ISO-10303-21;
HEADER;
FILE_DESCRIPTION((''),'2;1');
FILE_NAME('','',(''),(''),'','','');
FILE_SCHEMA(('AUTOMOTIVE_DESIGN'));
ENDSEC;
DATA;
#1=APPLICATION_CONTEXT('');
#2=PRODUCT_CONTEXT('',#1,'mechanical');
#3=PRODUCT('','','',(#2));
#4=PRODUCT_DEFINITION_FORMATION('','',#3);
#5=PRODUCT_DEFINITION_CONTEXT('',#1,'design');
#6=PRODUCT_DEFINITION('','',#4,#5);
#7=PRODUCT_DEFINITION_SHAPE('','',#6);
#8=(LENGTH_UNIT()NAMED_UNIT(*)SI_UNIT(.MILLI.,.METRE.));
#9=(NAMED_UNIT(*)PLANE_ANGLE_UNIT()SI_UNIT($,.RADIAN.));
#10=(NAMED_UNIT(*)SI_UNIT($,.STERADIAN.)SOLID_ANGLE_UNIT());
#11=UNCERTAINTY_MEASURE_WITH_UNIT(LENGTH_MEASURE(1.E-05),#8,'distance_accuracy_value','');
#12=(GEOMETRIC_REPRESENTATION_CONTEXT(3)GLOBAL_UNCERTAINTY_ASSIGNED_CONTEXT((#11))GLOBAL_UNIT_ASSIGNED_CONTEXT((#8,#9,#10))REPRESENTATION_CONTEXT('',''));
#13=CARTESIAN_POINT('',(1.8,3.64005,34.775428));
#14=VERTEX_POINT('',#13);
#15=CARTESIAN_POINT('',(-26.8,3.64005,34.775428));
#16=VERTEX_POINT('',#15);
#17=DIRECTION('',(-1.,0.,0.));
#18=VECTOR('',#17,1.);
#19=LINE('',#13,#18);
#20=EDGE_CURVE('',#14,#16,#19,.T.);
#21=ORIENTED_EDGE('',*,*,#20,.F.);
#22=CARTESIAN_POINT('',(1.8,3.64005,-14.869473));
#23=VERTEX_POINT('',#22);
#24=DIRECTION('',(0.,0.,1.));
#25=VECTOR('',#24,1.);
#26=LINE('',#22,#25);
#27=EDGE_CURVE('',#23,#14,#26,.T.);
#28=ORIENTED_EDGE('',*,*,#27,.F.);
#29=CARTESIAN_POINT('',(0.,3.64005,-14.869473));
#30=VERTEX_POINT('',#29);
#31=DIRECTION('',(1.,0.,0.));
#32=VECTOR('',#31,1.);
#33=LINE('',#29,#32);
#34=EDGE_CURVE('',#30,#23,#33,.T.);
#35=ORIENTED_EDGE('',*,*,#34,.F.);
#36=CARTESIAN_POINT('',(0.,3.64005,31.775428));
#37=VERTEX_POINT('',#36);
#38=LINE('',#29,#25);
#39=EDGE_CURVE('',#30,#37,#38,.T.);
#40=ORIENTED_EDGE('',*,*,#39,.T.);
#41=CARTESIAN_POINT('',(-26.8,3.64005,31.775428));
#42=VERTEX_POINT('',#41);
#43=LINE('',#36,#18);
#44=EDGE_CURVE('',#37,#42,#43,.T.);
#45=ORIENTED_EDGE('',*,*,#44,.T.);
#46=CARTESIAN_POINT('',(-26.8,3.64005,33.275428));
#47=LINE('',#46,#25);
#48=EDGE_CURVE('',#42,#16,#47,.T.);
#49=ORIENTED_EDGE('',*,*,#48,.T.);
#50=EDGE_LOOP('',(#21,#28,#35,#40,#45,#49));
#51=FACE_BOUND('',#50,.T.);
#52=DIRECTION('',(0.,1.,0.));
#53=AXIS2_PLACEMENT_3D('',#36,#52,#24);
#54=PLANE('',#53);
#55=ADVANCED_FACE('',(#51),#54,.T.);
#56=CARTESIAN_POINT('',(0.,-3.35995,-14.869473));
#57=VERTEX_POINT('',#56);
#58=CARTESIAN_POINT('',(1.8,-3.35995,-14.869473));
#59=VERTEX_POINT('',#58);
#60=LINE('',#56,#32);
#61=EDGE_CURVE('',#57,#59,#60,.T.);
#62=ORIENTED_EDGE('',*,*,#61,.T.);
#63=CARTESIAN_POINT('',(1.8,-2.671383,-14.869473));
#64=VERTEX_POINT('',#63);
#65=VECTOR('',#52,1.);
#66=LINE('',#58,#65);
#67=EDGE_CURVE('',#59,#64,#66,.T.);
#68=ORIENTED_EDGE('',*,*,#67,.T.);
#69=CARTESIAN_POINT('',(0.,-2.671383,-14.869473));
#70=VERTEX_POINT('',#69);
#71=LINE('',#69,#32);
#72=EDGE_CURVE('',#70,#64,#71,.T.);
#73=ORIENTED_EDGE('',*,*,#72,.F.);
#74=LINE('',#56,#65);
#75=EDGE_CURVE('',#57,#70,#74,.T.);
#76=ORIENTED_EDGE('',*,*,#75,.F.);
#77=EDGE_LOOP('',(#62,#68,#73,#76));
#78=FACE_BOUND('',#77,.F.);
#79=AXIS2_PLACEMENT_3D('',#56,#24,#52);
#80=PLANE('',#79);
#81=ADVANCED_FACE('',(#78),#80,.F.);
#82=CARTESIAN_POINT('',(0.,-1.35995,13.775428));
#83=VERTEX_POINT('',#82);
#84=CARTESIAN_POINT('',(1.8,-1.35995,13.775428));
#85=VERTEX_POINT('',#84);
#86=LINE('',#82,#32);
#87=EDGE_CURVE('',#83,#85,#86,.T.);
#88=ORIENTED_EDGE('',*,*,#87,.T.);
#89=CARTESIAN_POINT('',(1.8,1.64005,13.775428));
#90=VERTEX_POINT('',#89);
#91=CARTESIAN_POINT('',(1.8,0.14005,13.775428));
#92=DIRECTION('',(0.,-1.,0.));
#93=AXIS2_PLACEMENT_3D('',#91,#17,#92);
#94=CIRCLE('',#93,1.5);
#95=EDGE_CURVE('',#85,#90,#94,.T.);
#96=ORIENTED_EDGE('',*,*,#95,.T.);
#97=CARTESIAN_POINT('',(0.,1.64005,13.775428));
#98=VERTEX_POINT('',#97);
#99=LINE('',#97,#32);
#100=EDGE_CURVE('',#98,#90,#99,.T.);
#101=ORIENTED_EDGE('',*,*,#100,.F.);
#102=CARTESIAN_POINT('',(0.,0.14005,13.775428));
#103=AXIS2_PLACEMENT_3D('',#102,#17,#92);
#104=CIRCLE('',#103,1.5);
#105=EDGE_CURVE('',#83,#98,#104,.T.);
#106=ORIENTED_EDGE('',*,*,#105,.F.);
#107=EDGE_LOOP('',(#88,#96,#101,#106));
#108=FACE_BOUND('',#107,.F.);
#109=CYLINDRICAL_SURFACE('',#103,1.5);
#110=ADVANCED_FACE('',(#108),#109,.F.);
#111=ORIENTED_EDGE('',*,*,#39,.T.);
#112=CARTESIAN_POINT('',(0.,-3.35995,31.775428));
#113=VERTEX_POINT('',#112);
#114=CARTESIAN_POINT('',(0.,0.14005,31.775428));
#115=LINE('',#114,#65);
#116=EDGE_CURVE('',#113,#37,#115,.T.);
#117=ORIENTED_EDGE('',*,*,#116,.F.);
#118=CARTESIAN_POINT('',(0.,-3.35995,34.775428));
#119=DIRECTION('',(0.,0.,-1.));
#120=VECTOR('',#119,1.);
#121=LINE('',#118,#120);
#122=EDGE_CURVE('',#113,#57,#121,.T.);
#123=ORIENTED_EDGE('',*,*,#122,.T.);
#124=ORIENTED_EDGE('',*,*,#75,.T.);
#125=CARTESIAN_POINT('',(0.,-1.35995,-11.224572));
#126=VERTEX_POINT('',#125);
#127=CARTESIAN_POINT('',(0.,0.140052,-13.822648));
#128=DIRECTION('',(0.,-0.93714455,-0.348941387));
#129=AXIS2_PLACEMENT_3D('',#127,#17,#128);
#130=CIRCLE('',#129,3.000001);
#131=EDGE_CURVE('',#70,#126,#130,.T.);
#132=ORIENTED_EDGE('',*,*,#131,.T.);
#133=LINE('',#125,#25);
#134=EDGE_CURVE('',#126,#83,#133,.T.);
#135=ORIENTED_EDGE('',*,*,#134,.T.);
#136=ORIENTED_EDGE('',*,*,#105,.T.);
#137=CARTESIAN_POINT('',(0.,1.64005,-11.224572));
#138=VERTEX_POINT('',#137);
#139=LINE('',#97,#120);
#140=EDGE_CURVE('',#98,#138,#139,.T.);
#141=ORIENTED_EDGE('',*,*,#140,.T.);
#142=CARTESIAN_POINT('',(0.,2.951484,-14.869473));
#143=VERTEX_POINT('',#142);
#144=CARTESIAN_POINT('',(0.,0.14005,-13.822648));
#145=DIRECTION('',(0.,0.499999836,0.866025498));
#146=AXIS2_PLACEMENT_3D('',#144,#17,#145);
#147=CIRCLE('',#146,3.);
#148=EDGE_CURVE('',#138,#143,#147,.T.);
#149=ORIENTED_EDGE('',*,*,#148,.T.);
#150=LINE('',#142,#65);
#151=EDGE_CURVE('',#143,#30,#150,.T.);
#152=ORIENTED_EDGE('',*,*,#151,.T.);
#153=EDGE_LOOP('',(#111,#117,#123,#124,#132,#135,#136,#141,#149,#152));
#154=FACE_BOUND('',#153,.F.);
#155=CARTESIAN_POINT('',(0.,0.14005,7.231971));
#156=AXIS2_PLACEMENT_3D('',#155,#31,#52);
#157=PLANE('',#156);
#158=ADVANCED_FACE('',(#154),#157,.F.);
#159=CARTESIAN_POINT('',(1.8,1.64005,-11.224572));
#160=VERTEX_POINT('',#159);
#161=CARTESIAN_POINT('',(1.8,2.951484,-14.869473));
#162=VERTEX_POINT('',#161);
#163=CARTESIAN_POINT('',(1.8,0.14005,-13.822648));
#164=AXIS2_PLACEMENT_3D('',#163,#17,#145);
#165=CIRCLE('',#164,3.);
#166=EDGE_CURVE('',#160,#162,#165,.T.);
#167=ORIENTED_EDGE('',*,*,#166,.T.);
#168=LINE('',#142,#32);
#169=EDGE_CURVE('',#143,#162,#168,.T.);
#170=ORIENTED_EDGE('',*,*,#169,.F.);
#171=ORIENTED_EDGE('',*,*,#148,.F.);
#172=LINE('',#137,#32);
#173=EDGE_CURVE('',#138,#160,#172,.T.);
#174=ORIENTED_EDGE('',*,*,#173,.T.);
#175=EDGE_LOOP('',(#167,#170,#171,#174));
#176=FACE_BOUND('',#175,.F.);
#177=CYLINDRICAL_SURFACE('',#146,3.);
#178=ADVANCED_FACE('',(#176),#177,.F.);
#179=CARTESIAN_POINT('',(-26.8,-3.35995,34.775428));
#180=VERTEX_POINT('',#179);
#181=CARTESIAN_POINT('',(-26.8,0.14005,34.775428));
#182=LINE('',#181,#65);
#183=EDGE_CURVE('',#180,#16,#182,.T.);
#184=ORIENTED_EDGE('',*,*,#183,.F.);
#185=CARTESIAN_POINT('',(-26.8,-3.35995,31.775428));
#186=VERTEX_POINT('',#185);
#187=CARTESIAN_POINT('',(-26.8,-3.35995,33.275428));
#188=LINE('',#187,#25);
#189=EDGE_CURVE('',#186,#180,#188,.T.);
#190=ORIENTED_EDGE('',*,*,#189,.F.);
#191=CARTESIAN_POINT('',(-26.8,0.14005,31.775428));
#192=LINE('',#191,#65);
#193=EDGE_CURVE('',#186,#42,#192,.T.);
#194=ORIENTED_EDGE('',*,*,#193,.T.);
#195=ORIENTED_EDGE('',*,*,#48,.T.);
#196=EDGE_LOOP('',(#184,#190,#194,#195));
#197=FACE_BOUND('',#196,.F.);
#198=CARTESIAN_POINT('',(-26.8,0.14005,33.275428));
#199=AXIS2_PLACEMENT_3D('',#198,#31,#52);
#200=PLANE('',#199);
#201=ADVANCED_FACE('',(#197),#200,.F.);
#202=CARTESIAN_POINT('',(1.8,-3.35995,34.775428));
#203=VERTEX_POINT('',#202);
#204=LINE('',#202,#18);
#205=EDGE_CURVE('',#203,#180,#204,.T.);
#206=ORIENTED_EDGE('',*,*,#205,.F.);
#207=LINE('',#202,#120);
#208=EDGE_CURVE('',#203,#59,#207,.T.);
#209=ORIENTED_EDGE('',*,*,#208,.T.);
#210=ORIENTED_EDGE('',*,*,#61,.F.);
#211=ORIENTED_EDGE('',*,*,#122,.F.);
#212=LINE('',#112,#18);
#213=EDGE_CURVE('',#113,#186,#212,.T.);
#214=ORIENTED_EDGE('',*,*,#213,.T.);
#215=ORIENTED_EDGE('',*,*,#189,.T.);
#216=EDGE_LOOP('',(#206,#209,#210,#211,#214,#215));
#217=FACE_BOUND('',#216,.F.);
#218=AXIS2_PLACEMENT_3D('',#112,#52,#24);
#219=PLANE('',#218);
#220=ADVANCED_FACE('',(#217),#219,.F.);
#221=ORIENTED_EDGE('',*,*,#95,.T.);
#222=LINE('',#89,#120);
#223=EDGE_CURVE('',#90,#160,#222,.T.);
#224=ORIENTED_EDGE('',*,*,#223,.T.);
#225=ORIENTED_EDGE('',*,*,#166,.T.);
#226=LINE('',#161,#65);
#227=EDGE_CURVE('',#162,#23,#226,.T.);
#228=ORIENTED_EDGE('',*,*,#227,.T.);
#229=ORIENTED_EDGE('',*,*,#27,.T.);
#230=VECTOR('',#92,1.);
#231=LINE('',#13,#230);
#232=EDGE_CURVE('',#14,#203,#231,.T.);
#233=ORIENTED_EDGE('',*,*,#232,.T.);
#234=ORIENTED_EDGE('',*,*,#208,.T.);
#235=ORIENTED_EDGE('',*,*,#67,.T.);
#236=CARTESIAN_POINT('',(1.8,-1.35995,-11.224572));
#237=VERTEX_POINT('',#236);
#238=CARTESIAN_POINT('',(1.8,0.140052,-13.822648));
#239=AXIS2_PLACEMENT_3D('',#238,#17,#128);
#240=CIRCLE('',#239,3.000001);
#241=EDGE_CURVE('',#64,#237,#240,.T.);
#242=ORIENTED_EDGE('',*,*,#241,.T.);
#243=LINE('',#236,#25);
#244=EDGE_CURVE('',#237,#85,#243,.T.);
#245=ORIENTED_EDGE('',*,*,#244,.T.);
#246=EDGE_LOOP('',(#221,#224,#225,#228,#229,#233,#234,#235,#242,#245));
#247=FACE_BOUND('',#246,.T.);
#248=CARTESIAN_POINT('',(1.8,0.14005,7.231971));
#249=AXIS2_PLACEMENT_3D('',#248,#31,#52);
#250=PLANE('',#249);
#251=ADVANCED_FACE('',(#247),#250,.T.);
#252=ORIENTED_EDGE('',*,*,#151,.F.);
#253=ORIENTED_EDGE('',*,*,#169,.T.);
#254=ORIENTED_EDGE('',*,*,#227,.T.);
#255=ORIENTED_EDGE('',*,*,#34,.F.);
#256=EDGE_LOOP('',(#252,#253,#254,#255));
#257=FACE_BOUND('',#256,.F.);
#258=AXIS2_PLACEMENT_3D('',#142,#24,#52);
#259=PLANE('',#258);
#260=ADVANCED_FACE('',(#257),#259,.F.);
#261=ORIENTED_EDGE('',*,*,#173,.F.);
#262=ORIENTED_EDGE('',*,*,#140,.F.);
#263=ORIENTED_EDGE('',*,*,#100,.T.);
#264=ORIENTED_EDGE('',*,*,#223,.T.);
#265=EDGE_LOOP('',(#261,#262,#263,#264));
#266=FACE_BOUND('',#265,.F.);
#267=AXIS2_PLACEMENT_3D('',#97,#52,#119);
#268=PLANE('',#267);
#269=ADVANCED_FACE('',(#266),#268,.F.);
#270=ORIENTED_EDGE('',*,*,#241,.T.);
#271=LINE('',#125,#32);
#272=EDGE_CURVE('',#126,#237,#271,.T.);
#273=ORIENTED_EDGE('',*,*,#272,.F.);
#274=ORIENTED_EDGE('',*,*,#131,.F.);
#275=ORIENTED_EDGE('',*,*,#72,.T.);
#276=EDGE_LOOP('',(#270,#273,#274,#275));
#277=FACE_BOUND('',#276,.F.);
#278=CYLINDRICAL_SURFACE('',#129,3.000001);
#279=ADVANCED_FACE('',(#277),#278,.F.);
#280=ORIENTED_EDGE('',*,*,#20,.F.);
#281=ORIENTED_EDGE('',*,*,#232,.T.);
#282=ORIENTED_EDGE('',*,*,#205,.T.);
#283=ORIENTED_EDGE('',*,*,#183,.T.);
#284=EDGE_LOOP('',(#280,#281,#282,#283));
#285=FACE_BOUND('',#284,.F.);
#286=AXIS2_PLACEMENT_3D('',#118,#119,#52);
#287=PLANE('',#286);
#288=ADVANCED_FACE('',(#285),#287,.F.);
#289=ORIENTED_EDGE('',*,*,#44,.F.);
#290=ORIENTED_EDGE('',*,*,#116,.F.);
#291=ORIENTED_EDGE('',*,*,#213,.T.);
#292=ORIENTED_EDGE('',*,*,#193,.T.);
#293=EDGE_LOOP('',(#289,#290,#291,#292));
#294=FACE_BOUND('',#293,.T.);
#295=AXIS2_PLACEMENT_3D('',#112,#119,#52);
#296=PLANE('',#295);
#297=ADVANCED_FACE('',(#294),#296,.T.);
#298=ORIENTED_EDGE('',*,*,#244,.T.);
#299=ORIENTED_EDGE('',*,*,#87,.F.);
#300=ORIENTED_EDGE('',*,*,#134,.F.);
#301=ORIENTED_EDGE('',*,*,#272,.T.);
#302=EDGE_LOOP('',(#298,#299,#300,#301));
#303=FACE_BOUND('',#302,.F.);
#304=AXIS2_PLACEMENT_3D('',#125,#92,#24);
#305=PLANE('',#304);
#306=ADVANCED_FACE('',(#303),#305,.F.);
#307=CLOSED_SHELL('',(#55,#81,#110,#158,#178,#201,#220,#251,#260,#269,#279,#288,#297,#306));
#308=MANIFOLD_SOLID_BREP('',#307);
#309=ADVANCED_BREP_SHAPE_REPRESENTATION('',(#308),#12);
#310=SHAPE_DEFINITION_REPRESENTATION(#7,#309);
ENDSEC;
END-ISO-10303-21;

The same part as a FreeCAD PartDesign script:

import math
import FreeCAD as App
import Part
import Sketcher

doc = App.newDocument("Part")
body = doc.addObject("PartDesign::Body", "Body")

# Sketch on YZ plane
sketch1 = doc.addObject("Sketcher::SketchObject", "Sketch")
body.addObject(sketch1)
sketch1.AttachmentSupport = (doc.YZ_Plane, [""])
sketch1.MapMode = "FlatFace"
sketch1.addGeometry([
    Part.LineSegment(App.Vector(-1.4, -11.2, 0), App.Vector(-1.4, 13.8, 0)),  # 0
    Part.ArcOfCircle(Part.Circle(App.Vector(0.1, 13.8, 0), App.Vector(0, 0, 1), 1.5), math.radians(0), math.radians(180)),  # 1
    Part.LineSegment(App.Vector(1.6, 13.8, 0), App.Vector(1.6, -11.2, 0)),  # 2
    Part.ArcOfCircle(Part.Circle(App.Vector(0.1, -13.8, 0), App.Vector(0, 0, 1), 3), math.radians(-20), math.radians(60)),  # 3
    Part.LineSegment(App.Vector(3, -14.9, 0), App.Vector(3.6, -14.9, 0)),  # 4
    Part.LineSegment(App.Vector(3.6, -14.9, 0), App.Vector(3.6, 34.8, 0)),  # 5
    Part.LineSegment(App.Vector(3.6, 34.8, 0), App.Vector(-3.4, 34.8, 0)),  # 6
    Part.LineSegment(App.Vector(-3.4, 34.8, 0), App.Vector(-3.4, -14.9, 0)),  # 7
    Part.LineSegment(App.Vector(-3.4, -14.9, 0), App.Vector(-2.7, -14.9, 0)),  # 8
    Part.ArcOfCircle(Part.Circle(App.Vector(0.1, -13.8, 0), App.Vector(0, 0, 1), 3), math.radians(120), math.radians(200)),  # 9
], False)
sketch1.addConstraint([
    Sketcher.Constraint("Tangent", 0, 2, 1, 2),
    Sketcher.Constraint("Tangent", 1, 1, 2, 1),
    Sketcher.Constraint("Coincident", 2, 2, 3, 2),
    Sketcher.Constraint("Coincident", 3, 1, 4, 1),
    Sketcher.Constraint("Coincident", 4, 2, 5, 1),
    Sketcher.Constraint("Coincident", 5, 2, 6, 1),
    Sketcher.Constraint("Coincident", 6, 2, 7, 1),
    Sketcher.Constraint("Coincident", 7, 2, 8, 1),
    Sketcher.Constraint("Coincident", 8, 2, 9, 2),
    Sketcher.Constraint("Coincident", 9, 1, 0, 1),
    Sketcher.Constraint("Vertical", 0),
    Sketcher.Constraint("Vertical", 2),
    Sketcher.Constraint("Horizontal", 4),
    Sketcher.Constraint("Vertical", 5),
    Sketcher.Constraint("Horizontal", 6),
    Sketcher.Constraint("Vertical", 7),
    Sketcher.Constraint("Horizontal", 8),
    Sketcher.Constraint("Coincident", 9, 3, 3, 3),
    Sketcher.Constraint("Equal", 3, 9),
    Sketcher.Constraint("Horizontal", 4, 2, 7, 2),
    Sketcher.Constraint("Horizontal", 2, 2, 9, 1),
    Sketcher.Constraint("Equal", 4, 8),
    Sketcher.Constraint("Radius", 3, 3.0),
    Sketcher.Constraint("Radius", 1, 1.5),
    Sketcher.Constraint("DistanceX", 6, 2, 6, 1, 7.0),
    Sketcher.Constraint("DistanceY", 0, 1, 0, 2, 25.0),
    Sketcher.Constraint("DistanceY", 1, 1, 5, 2, 21.0),
    Sketcher.Constraint("DistanceY", 5, 1, 5, 2, 49.644901),
    Sketcher.Constraint("DistanceX", -1, 1, 1, 3, 0.14005),
    Sketcher.Constraint("DistanceY", 3, 3, -1, 1, 13.822648),
])
pad1 = doc.addObject("PartDesign::Pad", "Pad")
body.addObject(pad1)
pad1.Profile = sketch1
pad1.Length = 1.8

# Sketch on YZ plane
sketch2 = doc.addObject("Sketcher::SketchObject", "Sketch001")
body.addObject(sketch2)
sketch2.AttachmentSupport = (doc.YZ_Plane, [""])
sketch2.MapMode = "FlatFace"
sketch2.addGeometry([
    Part.LineSegment(App.Vector(-3.4, 34.8, 0), App.Vector(-3.4, 31.8, 0)),
    Part.LineSegment(App.Vector(-3.4, 31.8, 0), App.Vector(3.6, 31.8, 0)),
    Part.LineSegment(App.Vector(3.6, 31.8, 0), App.Vector(3.6, 34.8, 0)),
    Part.LineSegment(App.Vector(3.6, 34.8, 0), App.Vector(-3.4, 34.8, 0)),
], False)
sketch2.addConstraint([
    Sketcher.Constraint("Coincident", 0, 2, 1, 1),
    Sketcher.Constraint("Coincident", 1, 2, 2, 1),
    Sketcher.Constraint("Coincident", 2, 2, 3, 1),
    Sketcher.Constraint("Coincident", 3, 2, 0, 1),
    Sketcher.Constraint("Vertical", 0),
    Sketcher.Constraint("Horizontal", 1),
    Sketcher.Constraint("Vertical", 2),
    Sketcher.Constraint("Horizontal", 3),
    Sketcher.Constraint("DistanceX", 1, 1, 1, 2, 7.0),
    Sketcher.Constraint("DistanceY", 0, 2, 0, 1, 3.0),
    Sketcher.Constraint("DistanceX", 0, 2, -1, 1, 3.35995),
    Sketcher.Constraint("DistanceY", -1, 1, 0, 2, 31.775428),
])
pad2 = doc.addObject("PartDesign::Pad", "Pad001")
body.addObject(pad2)
pad2.Profile = sketch2
pad2.Length = 26.8
pad2.Reversed = True

doc.recompute()
